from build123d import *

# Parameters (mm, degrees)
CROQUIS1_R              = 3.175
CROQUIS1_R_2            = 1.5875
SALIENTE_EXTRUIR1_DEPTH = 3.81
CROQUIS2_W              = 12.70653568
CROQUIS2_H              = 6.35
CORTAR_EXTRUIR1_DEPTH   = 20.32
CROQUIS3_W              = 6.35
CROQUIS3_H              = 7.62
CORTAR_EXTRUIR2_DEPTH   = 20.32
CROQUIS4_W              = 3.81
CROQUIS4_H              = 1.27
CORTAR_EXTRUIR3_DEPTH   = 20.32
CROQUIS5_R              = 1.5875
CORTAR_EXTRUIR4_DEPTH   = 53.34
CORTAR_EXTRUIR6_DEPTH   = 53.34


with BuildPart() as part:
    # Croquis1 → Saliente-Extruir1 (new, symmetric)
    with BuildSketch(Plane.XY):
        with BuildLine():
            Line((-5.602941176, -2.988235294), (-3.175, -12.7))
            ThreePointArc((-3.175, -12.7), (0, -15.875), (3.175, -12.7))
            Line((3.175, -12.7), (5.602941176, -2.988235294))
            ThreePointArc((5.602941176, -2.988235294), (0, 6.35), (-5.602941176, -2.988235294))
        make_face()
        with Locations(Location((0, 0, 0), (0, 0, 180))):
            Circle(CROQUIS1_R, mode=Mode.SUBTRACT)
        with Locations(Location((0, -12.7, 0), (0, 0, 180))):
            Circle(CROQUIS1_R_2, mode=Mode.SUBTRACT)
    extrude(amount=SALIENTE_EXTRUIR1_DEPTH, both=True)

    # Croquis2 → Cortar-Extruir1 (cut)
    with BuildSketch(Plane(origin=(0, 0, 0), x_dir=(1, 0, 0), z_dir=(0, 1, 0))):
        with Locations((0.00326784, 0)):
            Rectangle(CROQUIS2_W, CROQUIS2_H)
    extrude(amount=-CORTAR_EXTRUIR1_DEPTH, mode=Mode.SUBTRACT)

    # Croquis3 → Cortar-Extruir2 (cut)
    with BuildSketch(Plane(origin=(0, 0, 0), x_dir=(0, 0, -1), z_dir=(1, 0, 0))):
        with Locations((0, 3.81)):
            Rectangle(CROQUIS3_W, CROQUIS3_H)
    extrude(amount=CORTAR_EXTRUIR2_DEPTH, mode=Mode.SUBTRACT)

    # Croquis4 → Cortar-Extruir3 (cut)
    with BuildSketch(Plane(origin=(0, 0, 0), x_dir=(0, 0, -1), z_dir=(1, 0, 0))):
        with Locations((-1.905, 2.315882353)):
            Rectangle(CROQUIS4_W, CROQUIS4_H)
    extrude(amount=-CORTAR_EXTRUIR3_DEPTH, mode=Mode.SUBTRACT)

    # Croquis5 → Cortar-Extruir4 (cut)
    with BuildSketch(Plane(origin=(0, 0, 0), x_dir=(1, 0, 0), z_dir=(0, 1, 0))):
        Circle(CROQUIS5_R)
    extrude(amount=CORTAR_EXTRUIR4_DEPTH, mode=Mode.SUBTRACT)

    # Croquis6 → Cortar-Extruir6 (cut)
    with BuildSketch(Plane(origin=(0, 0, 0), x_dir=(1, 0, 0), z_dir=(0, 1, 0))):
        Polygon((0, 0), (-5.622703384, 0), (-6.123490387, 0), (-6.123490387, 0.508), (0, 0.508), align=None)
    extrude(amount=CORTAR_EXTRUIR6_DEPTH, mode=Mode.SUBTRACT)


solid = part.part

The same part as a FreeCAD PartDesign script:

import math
import FreeCAD as App
import Part
import Sketcher
Q = App.Units.Quantity

doc = App.newDocument("Part")
body = doc.addObject("PartDesign::Body", "Body")

sketch1 = body.newObject("Sketcher::SketchObject", "Sketch")
sketch1.AttachmentSupport = (doc.getObject("XY_Plane"), [""])
sketch1.MapMode = "FlatFace"
sketch1.addGeometry([
    Part.LineSegment(App.Vector(-5.6, -3, 0), App.Vector(-3.2, -12.7, 0)),
    Part.ArcOfCircle(Part.Circle(App.Vector(0, -12.7, 0), App.Vector(0, 0, 1), 3.2), math.radians(180), math.radians(360)),
    Part.LineSegment(App.Vector(3.2, -12.7, 0), App.Vector(5.6, -3, 0)),
    Part.ArcOfCircle(Part.Circle(App.Vector(0, 0, 0), App.Vector(0, 0, 1), 6.3), math.radians(-28), math.radians(208)),
    Part.Circle(App.Vector(0, -12.7, 0), App.Vector(0, 0, 1), 1.6),
    Part.Circle(App.Vector(0, 0, 0), App.Vector(0, 0, 1), 3.2),
], False)
sketch1.addConstraint([
    Sketcher.Constraint("Coincident", 0, 2, 1, 1),
    Sketcher.Constraint("Coincident", 1, 2, 2, 1),
    Sketcher.Constraint("Coincident", 2, 2, 3, 1),
    Sketcher.Constraint("Coincident", 3, 2, 0, 1),
    Sketcher.Constraint("Coincident", 3, 3, -1, 1),
    Sketcher.Constraint("Coincident", 5, 3, -1, 1),
    Sketcher.Constraint("Coincident", 4, 3, 1, 3),
    Sketcher.Constraint("Equal", 1, 5),
    Sketcher.Constraint("Symmetric", 0, 2, 1, 2, -2),
    Sketcher.Constraint("Horizontal", 4, 3, 0, 2),
    Sketcher.Constraint("Horizontal", 2, 2, 3, 2),
    Sketcher.Constraint("Diameter", 5, Q("0.25 in")),
    Sketcher.Constraint("Radius", 3, Q("0.25 in")),
    Sketcher.Constraint("Diameter", 4, Q("0.125 in")),
    Sketcher.Constraint("DistanceY", 1, 3, -1, 1, Q("0.5 in")),
    Sketcher.Constraint("DistanceX", -1, 1, 2, 2, 5.602941),
])
pad1 = body.newObject("PartDesign::Pad", "Pad")
pad1.Profile = sketch1
pad1.Length = Q("0.3 in")
pad1.Midplane = True

sketch2 = body.newObject("Sketcher::SketchObject", "Sketch001")
sketch2.AttachmentSupport = (doc.getObject("XZ_Plane"), [""])
sketch2.MapMode = "FlatFace"
sketch2.addGeometry([
    Part.LineSegment(App.Vector(-6, -3, 0), App.Vector(-6, 3, 0)),
    Part.LineSegment(App.Vector(-6, 3, 0), App.Vector(6, 3, 0)),
    Part.LineSegment(App.Vector(6, 3, 0), App.Vector(6, -3, 0)),
    Part.LineSegment(App.Vector(6, -3, 0), App.Vector(-6, -3, 0)),
], False)
sketch2.addConstraint([
    Sketcher.Constraint("Coincident", 0, 2, 1, 1),
    Sketcher.Constraint("Coincident", 1, 2, 2, 1),
    Sketcher.Constraint("Coincident", 2, 2, 3, 1),
    Sketcher.Constraint("Coincident", 3, 2, 0, 1),
    Sketcher.Constraint("Vertical", 0),
    Sketcher.Constraint("Horizontal", 1),
    Sketcher.Constraint("Vertical", 2),
    Sketcher.Constraint("Horizontal", 3),
    Sketcher.Constraint("DistanceY", 0, 1, 0, 2, Q("0.25 in")),
    Sketcher.Constraint("DistanceX", 0, 2, -1, 1, Q("0.25 in")),
    Sketcher.Constraint("DistanceY", -1, 1, 0, 2, Q("0.125 in")),
    Sketcher.Constraint("DistanceX", 1, 1, 1, 2, 12.706536),
])
pocket1 = body.newObject("PartDesign::Pocket", "Pocket")
pocket1.Profile = sketch2
pocket1.Length = Q("0.8 in")
pocket1.Reversed = True

sketch3 = body.newObject("Sketcher::SketchObject", "Sketch002")
sketch3.AttachmentSupport = (doc.getObject("YZ_Plane"), [""])
sketch3.MapMode = "FlatFace"
sketch3.addGeometry([
    Part.LineSegment(App.Vector(8, 3, 0), App.Vector(0, 3, 0)),
    Part.LineSegment(App.Vector(0, 3, 0), App.Vector(0, -3, 0)),
    Part.LineSegment(App.Vector(0, -3, 0), App.Vector(8, -3, 0)),
    Part.LineSegment(App.Vector(8, -3, 0), App.Vector(8, 3, 0)),
], False)
sketch3.addConstraint([
    Sketcher.Constraint("Coincident", 0, 2, 1, 1),
    Sketcher.Constraint("Coincident", 1, 2, 2, 1),
    Sketcher.Constraint("Coincident", 2, 2, 3, 1),
    Sketcher.Constraint("Coincident", 3, 2, 0, 1),
    Sketcher.Constraint("Horizontal", 0),
    Sketcher.Constraint("Vertical", 1),
    Sketcher.Constraint("Horizontal", 2),
    Sketcher.Constraint("Vertical", 3),
    Sketcher.Constraint("Symmetric", 0, 2, 1, 2, -1, 1),
    Sketcher.Constraint("DistanceX", 0, 2, 0, 1, Q("0.3 in")),
    Sketcher.Constraint("DistanceY", 1, 2, 1, 1, Q("0.25 in")),
])
pocket2 = body.newObject("PartDesign::Pocket", "Pocket001")
pocket2.Profile = sketch3
pocket2.Length = Q("0.8 in")
pocket2.Reversed = True

sketch4 = body.newObject("Sketcher::SketchObject", "Sketch003")
sketch4.AttachmentSupport = (doc.getObject("YZ_Plane"), [""])
sketch4.MapMode = "FlatFace"
sketch4.addGeometry([
    Part.LineSegment(App.Vector(3, 3.8, 0), App.Vector(1.7, 3.8, 0)),
    Part.LineSegment(App.Vector(1.7, 3.8, 0), App.Vector(1.7, 0, 0)),
    Part.LineSegment(App.Vector(1.7, 0, 0), App.Vector(3, 0, 0)),
    Part.LineSegment(App.Vector(3, 0, 0), App.Vector(3, 3.8, 0)),
], False)
sketch4.addConstraint([
    Sketcher.Constraint("Coincident", 0, 2, 1, 1),
    Sketcher.Constraint("Coincident", 1, 2, 2, 1),
    Sketcher.Constraint("Coincident", 2, 2, 3, 1),
    Sketcher.Constraint("Coincident", 3, 2, 0, 1),
    Sketcher.Constraint("Horizontal", 0),
    Sketcher.Constraint("Vertical", 1),
    Sketcher.Constraint("Horizontal", 2),
    Sketcher.Constraint("Vertical", 3),
    Sketcher.Constraint("PointOnObject", 1, 2, -1),
    Sketcher.Constraint("DistanceX", 0, 2, 0, 1, Q("0.05 in")),
    Sketcher.Constraint("DistanceY", 1, 2, 1, 1, Q("0.15 in")),
    Sketcher.Constraint("DistanceX", -1, 1, 0, 2, 1.680882),
])
pocket3 = body.newObject("PartDesign::Pocket", "Pocket002")
pocket3.Profile = sketch4
pocket3.Length = Q("0.8 in")

sketch5 = body.newObject("Sketcher::SketchObject", "Sketch004")
sketch5.AttachmentSupport = (doc.getObject("XZ_Plane"), [""])
sketch5.MapMode = "FlatFace"
sketch5.addGeometry(Part.Circle(App.Vector(0, 0, 0), App.Vector(0, 0, 1), 1.6), False)
sketch5.addConstraint([
    Sketcher.Constraint("Coincident", 0, 3, -1, 1),
    Sketcher.Constraint("Diameter", 0, Q("0.125 in")),
])
pocket4 = body.newObject("PartDesign::Pocket", "Pocket003")
pocket4.Profile = sketch5
pocket4.Length = Q("2.1 in")

sketch6 = body.newObject("Sketcher::SketchObject", "Sketch005")
sketch6.AttachmentSupport = (doc.getObject("XZ_Plane"), [""])
sketch6.MapMode = "FlatFace"
sketch6.addGeometry([
    Part.LineSegment(App.Vector(-6.1, 0, 0), App.Vector(0, 0, 0)),
    Part.LineSegment(App.Vector(0, 0, 0), App.Vector(0, -0.5, 0)),
    Part.LineSegment(App.Vector(0, -0.5, 0), App.Vector(-6.1, -0.5, 0)),
    Part.LineSegment(App.Vector(-6.1, -0.5, 0), App.Vector(-6.1, 0, 0)),
], False)
sketch6.addConstraint([
    Sketcher.Constraint("Coincident", 0, 2, 1, 1),
    Sketcher.Constraint("Coincident", 1, 2, 2, 1),
    Sketcher.Constraint("Coincident", 2, 2, 3, 1),
    Sketcher.Constraint("Coincident", 3, 2, 0, 1),
    Sketcher.Constraint("Horizontal", 0),
    Sketcher.Constraint("Vertical", 1),
    Sketcher.Constraint("Horizontal", 2),
    Sketcher.Constraint("Vertical", 3),
    Sketcher.Constraint("Coincident", 0, 2, -1, 1),
    Sketcher.Constraint("DistanceY", 1, 2, 1, 1, Q("0.02 in")),
    Sketcher.Constraint("DistanceX", 0, 1, 0, 2, 6.12349),
])
pocket5 = body.newObject("PartDesign::Pocket", "Pocket004")
pocket5.Profile = sketch6
pocket5.Length = Q("2.1 in")

doc.recompute()
